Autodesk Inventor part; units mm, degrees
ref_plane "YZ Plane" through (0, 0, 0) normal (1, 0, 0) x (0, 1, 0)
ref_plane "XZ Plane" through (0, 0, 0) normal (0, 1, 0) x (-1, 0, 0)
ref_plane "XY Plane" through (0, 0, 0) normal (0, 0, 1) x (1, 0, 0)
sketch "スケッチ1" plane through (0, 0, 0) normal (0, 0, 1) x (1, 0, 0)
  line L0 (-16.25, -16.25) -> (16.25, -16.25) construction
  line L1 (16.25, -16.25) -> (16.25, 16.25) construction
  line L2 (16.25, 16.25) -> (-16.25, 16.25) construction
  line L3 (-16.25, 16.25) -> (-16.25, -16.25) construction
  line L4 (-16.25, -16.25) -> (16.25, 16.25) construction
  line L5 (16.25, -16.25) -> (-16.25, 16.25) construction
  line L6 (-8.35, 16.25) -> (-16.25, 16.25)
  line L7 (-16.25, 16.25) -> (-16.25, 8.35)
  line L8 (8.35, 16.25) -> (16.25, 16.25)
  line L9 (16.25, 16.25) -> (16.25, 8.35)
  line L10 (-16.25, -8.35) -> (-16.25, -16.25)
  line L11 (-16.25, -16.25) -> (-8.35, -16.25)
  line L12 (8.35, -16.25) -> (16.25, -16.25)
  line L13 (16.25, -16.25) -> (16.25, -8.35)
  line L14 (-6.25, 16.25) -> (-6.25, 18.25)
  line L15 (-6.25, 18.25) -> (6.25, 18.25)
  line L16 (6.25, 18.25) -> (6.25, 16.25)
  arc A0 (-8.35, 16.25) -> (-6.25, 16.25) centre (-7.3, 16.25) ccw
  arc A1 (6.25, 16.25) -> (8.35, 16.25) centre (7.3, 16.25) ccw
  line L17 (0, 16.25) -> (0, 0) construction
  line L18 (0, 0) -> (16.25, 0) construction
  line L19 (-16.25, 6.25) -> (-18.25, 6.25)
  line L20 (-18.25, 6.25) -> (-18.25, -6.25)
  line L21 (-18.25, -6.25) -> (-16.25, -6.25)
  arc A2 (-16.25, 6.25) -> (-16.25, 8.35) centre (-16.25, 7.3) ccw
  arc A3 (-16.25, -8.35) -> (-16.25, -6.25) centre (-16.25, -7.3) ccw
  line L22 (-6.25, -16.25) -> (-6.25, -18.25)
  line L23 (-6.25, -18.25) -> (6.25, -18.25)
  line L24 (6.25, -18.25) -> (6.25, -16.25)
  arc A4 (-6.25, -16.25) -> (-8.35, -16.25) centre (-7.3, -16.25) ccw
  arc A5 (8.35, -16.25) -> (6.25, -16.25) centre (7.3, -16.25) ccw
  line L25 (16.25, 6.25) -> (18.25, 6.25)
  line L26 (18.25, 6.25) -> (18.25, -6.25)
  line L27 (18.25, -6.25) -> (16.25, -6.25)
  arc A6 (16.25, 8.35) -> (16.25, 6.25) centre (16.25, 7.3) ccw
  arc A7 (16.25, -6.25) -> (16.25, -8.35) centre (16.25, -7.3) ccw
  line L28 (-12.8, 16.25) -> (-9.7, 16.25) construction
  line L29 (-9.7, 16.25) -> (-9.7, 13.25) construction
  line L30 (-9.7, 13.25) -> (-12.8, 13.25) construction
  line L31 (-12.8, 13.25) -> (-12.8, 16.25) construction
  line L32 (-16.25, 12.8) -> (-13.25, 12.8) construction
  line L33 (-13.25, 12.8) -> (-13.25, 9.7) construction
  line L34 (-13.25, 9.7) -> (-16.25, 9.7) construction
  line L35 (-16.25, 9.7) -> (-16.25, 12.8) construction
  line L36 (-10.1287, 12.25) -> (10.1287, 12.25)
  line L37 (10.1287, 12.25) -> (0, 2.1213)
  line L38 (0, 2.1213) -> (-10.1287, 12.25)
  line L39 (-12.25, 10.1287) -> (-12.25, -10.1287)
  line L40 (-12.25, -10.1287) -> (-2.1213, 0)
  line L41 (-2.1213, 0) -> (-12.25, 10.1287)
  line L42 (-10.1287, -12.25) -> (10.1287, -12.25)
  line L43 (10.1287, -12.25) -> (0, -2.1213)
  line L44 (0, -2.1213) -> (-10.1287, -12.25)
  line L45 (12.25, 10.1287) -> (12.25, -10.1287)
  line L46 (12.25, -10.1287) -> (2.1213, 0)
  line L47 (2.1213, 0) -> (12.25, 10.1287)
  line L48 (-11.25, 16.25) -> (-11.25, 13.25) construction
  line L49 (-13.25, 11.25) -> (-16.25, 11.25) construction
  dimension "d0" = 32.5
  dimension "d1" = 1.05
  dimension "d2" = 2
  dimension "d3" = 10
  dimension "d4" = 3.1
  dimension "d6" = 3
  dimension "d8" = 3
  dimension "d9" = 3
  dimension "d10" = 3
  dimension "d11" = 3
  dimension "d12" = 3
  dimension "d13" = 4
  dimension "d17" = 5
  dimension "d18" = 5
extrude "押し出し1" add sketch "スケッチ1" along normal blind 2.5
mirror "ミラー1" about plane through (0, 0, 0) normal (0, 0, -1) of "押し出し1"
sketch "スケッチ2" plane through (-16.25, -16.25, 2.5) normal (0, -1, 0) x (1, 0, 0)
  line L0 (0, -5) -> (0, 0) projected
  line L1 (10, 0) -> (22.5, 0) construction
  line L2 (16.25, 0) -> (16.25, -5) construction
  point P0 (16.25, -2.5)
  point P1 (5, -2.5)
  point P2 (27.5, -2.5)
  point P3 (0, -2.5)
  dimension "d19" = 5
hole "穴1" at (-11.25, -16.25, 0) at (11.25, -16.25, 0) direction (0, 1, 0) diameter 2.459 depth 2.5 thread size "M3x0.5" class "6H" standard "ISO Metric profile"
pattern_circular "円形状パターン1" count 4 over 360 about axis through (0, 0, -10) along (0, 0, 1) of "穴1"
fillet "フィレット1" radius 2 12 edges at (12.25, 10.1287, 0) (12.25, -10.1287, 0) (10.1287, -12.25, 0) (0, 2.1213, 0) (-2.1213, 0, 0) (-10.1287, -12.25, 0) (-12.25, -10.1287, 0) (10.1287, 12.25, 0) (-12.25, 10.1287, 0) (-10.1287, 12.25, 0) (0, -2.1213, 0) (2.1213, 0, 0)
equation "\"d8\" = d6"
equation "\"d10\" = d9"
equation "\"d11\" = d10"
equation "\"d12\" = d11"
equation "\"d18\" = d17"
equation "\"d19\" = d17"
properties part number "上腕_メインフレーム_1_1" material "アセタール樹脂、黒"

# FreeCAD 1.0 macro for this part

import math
import FreeCAD as App
import Part
import Sketcher

V = App.Vector


def edges_at(feature, points):
    """Names of the edges that pass closest to the given points."""
    edges = feature.Shape.Edges
    near = lambda p: min(range(len(edges)), key=lambda i: edges[i].distToShape(Part.Vertex(*p))[0])
    return sorted({f"Edge{near(p) + 1}" for p in points})


def add_polygon(sketch, points):
    """Adds a closed chain of lines whose ends are joined by coincident constraints."""
    first, n = sketch.GeometryCount, len(points)
    for a, b in zip(points, points[1:] + points[:1]):
        sketch.addGeometry(Part.LineSegment(App.Vector(*a, 0), App.Vector(*b, 0)), False)
    for i in range(n):
        sketch.addConstraint(Sketcher.Constraint("Coincident", first + i, 2, first + (i + 1) % n, 1))

doc = App.newDocument("Part")
body = doc.addObject("PartDesign::Body", "Body")

sketch1 = doc.addObject("Sketcher::SketchObject", "Sketch")
body.addObject(sketch1)
sketch1.AttachmentSupport = (doc.XY_Plane, [""])
sketch1.MapMode = "FlatFace"
sketch1.addGeometry(Part.ArcOfCircle(Part.Circle(V(-7.3, 16.25, 0), V(0, 0, 1), 1.05), math.radians(180), math.radians(360)), False)
sketch1.addGeometry(Part.LineSegment(V(-8.35, 16.25, 0), V(-16.25, 16.25, 0)), False)
sketch1.addGeometry(Part.LineSegment(V(-16.25, 16.25, 0), V(-16.25, 8.35, 0)), False)
sketch1.addGeometry(Part.ArcOfCircle(Part.Circle(V(-16.25, 7.3, 0), V(0, 0, 1), 1.05), math.radians(-90), math.radians(90)), False)
sketch1.addGeometry(Part.LineSegment(V(-16.25, 6.25, 0), V(-18.25, 6.25, 0)), False)
sketch1.addGeometry(Part.LineSegment(V(-18.25, 6.25, 0), V(-18.25, -6.25, 0)), False)
sketch1.addGeometry(Part.LineSegment(V(-18.25, -6.25, 0), V(-16.25, -6.25, 0)), False)
sketch1.addGeometry(Part.ArcOfCircle(Part.Circle(V(-16.25, -7.3, 0), V(0, 0, 1), 1.05), math.radians(-90), math.radians(90)), False)
sketch1.addGeometry(Part.LineSegment(V(-16.25, -8.35, 0), V(-16.25, -16.25, 0)), False)
sketch1.addGeometry(Part.LineSegment(V(-16.25, -16.25, 0), V(-8.35, -16.25, 0)), False)
sketch1.addGeometry(Part.ArcOfCircle(Part.Circle(V(-7.3, -16.25, 0), V(0, 0, 1), 1.05), math.radians(0), math.radians(180)), False)
sketch1.addGeometry(Part.LineSegment(V(-6.25, -16.25, 0), V(-6.25, -18.25, 0)), False)
sketch1.addGeometry(Part.LineSegment(V(-6.25, -18.25, 0), V(6.25, -18.25, 0)), False)
sketch1.addGeometry(Part.LineSegment(V(6.25, -18.25, 0), V(6.25, -16.25, 0)), False)
sketch1.addGeometry(Part.ArcOfCircle(Part.Circle(V(7.3, -16.25, 0), V(0, 0, 1), 1.05), math.radians(0), math.radians(180)), False)
sketch1.addGeometry(Part.LineSegment(V(8.35, -16.25, 0), V(16.25, -16.25, 0)), False)
sketch1.addGeometry(Part.LineSegment(V(16.25, -16.25, 0), V(16.25, -8.35, 0)), False)
sketch1.addGeometry(Part.ArcOfCircle(Part.Circle(V(16.25, -7.3, 0), V(0, 0, 1), 1.05), math.radians(90), math.radians(270)), False)
sketch1.addGeometry(Part.LineSegment(V(16.25, -6.25, 0), V(18.25, -6.25, 0)), False)
sketch1.addGeometry(Part.LineSegment(V(18.25, -6.25, 0), V(18.25, 6.25, 0)), False)
sketch1.addGeometry(Part.LineSegment(V(18.25, 6.25, 0), V(16.25, 6.25, 0)), False)
sketch1.addGeometry(Part.ArcOfCircle(Part.Circle(V(16.25, 7.3, 0), V(0, 0, 1), 1.05), math.radians(90), math.radians(270)), False)
sketch1.addGeometry(Part.LineSegment(V(16.25, 8.35, 0), V(16.25, 16.25, 0)), False)
sketch1.addGeometry(Part.LineSegment(V(16.25, 16.25, 0), V(8.35, 16.25, 0)), False)
sketch1.addGeometry(Part.ArcOfCircle(Part.Circle(V(7.3, 16.25, 0), V(0, 0, 1), 1.05), math.radians(180), math.radians(360)), False)
sketch1.addGeometry(Part.LineSegment(V(6.25, 16.25, 0), V(6.25, 18.25, 0)), False)
sketch1.addGeometry(Part.LineSegment(V(6.25, 18.25, 0), V(-6.25, 18.25, 0)), False)
sketch1.addGeometry(Part.LineSegment(V(-6.25, 18.25, 0), V(-6.25, 16.25, 0)), False)
add_polygon(sketch1, [(10.1287, -12.25), (-10.1287, -12.25), (0, -2.1213)])
add_polygon(sketch1, [(-12.25, -10.1287), (-12.25, 10.1287), (-2.1213, 0)])
add_polygon(sketch1, [(2.1213, 0), (12.25, 10.1287), (12.25, -10.1287)])
add_polygon(sketch1, [(0, 2.1213), (-10.1287, 12.25), (10.1287, 12.25)])
sketch1.addConstraint([
    Sketcher.Constraint("Coincident", 0, 1, 1, 1),
    Sketcher.Constraint("Coincident", 1, 2, 2, 1),
    Sketcher.Constraint("Coincident", 2, 2, 3, 2),
    Sketcher.Constraint("Tangent", 3, 1, 4, 1),
    Sketcher.Constraint("Coincident", 4, 2, 5, 1),
    Sketcher.Constraint("Coincident", 5, 2, 6, 1),
    Sketcher.Constraint("Tangent", 6, 2, 7, 2),
    Sketcher.Constraint("Coincident", 7, 1, 8, 1),
    Sketcher.Constraint("Coincident", 8, 2, 9, 1),
    Sketcher.Constraint("Coincident", 9, 2, 10, 2),
    Sketcher.Constraint("Tangent", 10, 1, 11, 1),
    Sketcher.Constraint("Coincident", 11, 2, 12, 1),
    Sketcher.Constraint("Coincident", 12, 2, 13, 1),
    Sketcher.Constraint("Tangent", 13, 2, 14, 2),
    Sketcher.Constraint("Coincident", 14, 1, 15, 1),
    Sketcher.Constraint("Coincident", 15, 2, 16, 1),
    Sketcher.Constraint("Coincident", 16, 2, 17, 2),
    Sketcher.Constraint("Tangent", 17, 1, 18, 1),
    Sketcher.Constraint("Coincident", 18, 2, 19, 1),
    Sketcher.Constraint("Coincident", 19, 2, 20, 1),
    Sketcher.Constraint("Tangent", 20, 2, 21, 2),
    Sketcher.Constraint("Coincident", 21, 1, 22, 1),
    Sketcher.Constraint("Coincident", 22, 2, 23, 1),
    Sketcher.Constraint("Coincident", 23, 2, 24, 2),
    Sketcher.Constraint("Tangent", 24, 1, 25, 1),
    Sketcher.Constraint("Coincident", 25, 2, 26, 1),
    Sketcher.Constraint("Coincident", 26, 2, 27, 1),
    Sketcher.Constraint("Tangent", 27, 2, 0, 2),
    Sketcher.Constraint("Horizontal", 1),
    Sketcher.Constraint("Vertical", 2),
    Sketcher.Constraint("Horizontal", 4),
    Sketcher.Constraint("Vertical", 5),
    Sketcher.Constraint("Horizontal", 6),
    Sketcher.Constraint("Vertical", 8),
    Sketcher.Constraint("Horizontal", 9),
    Sketcher.Constraint("Vertical", 11),
    Sketcher.Constraint("Horizontal", 12),
    Sketcher.Constraint("Vertical", 13),
    Sketcher.Constraint("Horizontal", 15),
    Sketcher.Constraint("Vertical", 16),
    Sketcher.Constraint("Horizontal", 18),
    Sketcher.Constraint("Vertical", 19),
    Sketcher.Constraint("Horizontal", 20),
    Sketcher.Constraint("Vertical", 22),
    Sketcher.Constraint("Horizontal", 23),
    Sketcher.Constraint("Vertical", 25),
    Sketcher.Constraint("Horizontal", 26),
    Sketcher.Constraint("Vertical", 27),
    Sketcher.Constraint("Horizontal", 28),
    Sketcher.Constraint("Vertical", 31),
    Sketcher.Constraint("Vertical", 35),
    Sketcher.Constraint("Horizontal", 38),
    Sketcher.Constraint("Equal", 0, 3),
    Sketcher.Constraint("Equal", 3, 7),
    Sketcher.Constraint("Equal", 7, 10),
    Sketcher.Constraint("Equal", 10, 14),
    Sketcher.Constraint("Equal", 14, 17),
    Sketcher.Constraint("Equal", 17, 21),
    Sketcher.Constraint("Equal", 21, 24),
    Sketcher.Constraint("Symmetric", 0, 3, 14, 3, -1, 1),
    Sketcher.Constraint("Symmetric", 3, 3, 17, 3, -1, 1),
    Sketcher.Constraint("Symmetric", 7, 3, 21, 3, -1, 1),
    Sketcher.Constraint("Symmetric", 10, 3, 24, 3, -1, 1),
    Sketcher.Constraint("Symmetric", 1, 2, 15, 2, -1, 1),
    Sketcher.Constraint("Symmetric", 8, 2, 22, 2, -1, 1),
    Sketcher.Constraint("Symmetric", 33, 2, 34, 2, -1, 1),
    Sketcher.Constraint("Symmetric", 32, 2, 36, 2, -1, 1),
    Sketcher.Constraint("Symmetric", 30, 2, 37, 2, -1, 1),
    Sketcher.Constraint("Symmetric", 29, 2, 39, 2, -1, 1),
    Sketcher.Constraint("Symmetric", 10, 3, 14, 3, -2),
    Sketcher.Constraint("Symmetric", 7, 3, 17, 3, -2),
    Sketcher.Constraint("Symmetric", 8, 2, 15, 2, -2),
    Sketcher.Constraint("PointOnObject", 29, 2, -2),
    Sketcher.Constraint("PointOnObject", 32, 2, -1),
    Sketcher.Constraint("Perpendicular", 29, 30),
    Sketcher.Constraint("Parallel", 30, 32),
    Sketcher.Constraint("Perpendicular", 32, 33),
    Sketcher.Constraint("Perpendicular", 34, 36),
    Sketcher.Constraint("Perpendicular", 37, 39),
    Sketcher.Constraint("Horizontal", 24, 3, 0, 1),
    Sketcher.Constraint("Horizontal", 31, 2, 34, 2),
    Sketcher.Constraint("Vertical", 7, 3, 1, 2),
    Sketcher.Constraint("Equal", 6, 18),
    Sketcher.Constraint("Equal", 23, 2),
    Sketcher.Constraint("Equal", 26, 5),
    Sketcher.Constraint("Equal", 20, 11),
    Sketcher.Constraint("Equal", 13, 25),
    Sketcher.Constraint("Equal", 38, 31),
    Sketcher.Constraint("DistanceX", 4, 2, 4, 1, 2.0),
    Sketcher.Constraint("Radius", 0, 1.05),
    Sketcher.Constraint("DistanceY", 3, 1, 1, 2, 10.0),
    Sketcher.Constraint("DistanceY", 9, 2, 28, 2, 4.0),
    Sketcher.Constraint("DistanceX", 2, 2, 31, 2, 4.0),
    Sketcher.Constraint("DistanceY", 10, 3, 0, 3, 32.5),
    Sketcher.Constraint("DistanceX", 28, 2, 28, 1, 20.2574),
])
pad1 = doc.addObject("PartDesign::Pad", "Pad")
body.addObject(pad1)
pad1.Profile = sketch1
pad1.Length = 2.5
doc.recompute()

mirrored = doc.addObject("PartDesign::Mirrored", "Mirrored")
body.addObject(mirrored)
mirrored.Originals = [pad1]
mirrored.MirrorPlane = (doc.XY_Plane, [""])
body.Tip = mirrored

sketch2 = doc.addObject("Sketcher::SketchObject", "Sketch001")
body.addObject(sketch2)
sketch2.AttachmentSupport = (doc.XZ_Plane, [""])
sketch2.MapMode = "FlatFace"
sketch2.AttachmentOffset = App.Placement(V(0, 0, 16.25), App.Rotation())
sketch2.addGeometry([
    Part.Circle(V(-11.25, 0, 0), V(0, 0, 1), 1.2295),
    Part.Circle(V(11.25, 0, 0), V(0, 0, 1), 1.2295),
], False)
sketch2.addConstraint([
    Sketcher.Constraint("Equal", 0, 1),
    Sketcher.Constraint("Symmetric", 0, 3, 1, 3, -1, 1),
    Sketcher.Constraint("PointOnObject", 0, 3, -1),
    Sketcher.Constraint("Diameter", 0, 2.459),
    Sketcher.Constraint("DistanceX", 0, 3, 1, 3, 22.5),
])
doc.recompute()
hole = doc.addObject("PartDesign::Hole", "Hole")
body.addObject(hole)
hole.Profile = sketch2
hole.ThreadType = "None"
hole.Diameter = 2.459
hole.DepthType = "Dimension"
hole.Depth = 2.5
hole.DrillPoint = "Flat"
doc.recompute()

polarpattern = doc.addObject("PartDesign::PolarPattern", "PolarPattern")
body.addObject(polarpattern)
polarpattern.Originals = [hole]
polarpattern.Axis = (doc.Z_Axis, [""])
polarpattern.Angle = 360
polarpattern.Occurrences = 4
body.Tip = polarpattern
doc.recompute()

fillet = doc.addObject("PartDesign::Fillet", "Fillet")
body.addObject(fillet)
fillet.Base = (polarpattern, edges_at(polarpattern, [
    (12.25, 10.129, 0),
    (12.25, -10.129, 0),
    (10.129, -12.25, 0),
    (0, 2.121, 0),
    (-2.121, 0, 0),
    (-10.129, -12.25, 0),
    (-12.25, -10.129, 0),
    (10.129, 12.25, 0),
    (-12.25, 10.129, 0),
    (-10.129, 12.25, 0),
    (0, -2.121, 0),
    (2.121, 0, 0),
]))
fillet.Radius = 2

doc.recompute()
